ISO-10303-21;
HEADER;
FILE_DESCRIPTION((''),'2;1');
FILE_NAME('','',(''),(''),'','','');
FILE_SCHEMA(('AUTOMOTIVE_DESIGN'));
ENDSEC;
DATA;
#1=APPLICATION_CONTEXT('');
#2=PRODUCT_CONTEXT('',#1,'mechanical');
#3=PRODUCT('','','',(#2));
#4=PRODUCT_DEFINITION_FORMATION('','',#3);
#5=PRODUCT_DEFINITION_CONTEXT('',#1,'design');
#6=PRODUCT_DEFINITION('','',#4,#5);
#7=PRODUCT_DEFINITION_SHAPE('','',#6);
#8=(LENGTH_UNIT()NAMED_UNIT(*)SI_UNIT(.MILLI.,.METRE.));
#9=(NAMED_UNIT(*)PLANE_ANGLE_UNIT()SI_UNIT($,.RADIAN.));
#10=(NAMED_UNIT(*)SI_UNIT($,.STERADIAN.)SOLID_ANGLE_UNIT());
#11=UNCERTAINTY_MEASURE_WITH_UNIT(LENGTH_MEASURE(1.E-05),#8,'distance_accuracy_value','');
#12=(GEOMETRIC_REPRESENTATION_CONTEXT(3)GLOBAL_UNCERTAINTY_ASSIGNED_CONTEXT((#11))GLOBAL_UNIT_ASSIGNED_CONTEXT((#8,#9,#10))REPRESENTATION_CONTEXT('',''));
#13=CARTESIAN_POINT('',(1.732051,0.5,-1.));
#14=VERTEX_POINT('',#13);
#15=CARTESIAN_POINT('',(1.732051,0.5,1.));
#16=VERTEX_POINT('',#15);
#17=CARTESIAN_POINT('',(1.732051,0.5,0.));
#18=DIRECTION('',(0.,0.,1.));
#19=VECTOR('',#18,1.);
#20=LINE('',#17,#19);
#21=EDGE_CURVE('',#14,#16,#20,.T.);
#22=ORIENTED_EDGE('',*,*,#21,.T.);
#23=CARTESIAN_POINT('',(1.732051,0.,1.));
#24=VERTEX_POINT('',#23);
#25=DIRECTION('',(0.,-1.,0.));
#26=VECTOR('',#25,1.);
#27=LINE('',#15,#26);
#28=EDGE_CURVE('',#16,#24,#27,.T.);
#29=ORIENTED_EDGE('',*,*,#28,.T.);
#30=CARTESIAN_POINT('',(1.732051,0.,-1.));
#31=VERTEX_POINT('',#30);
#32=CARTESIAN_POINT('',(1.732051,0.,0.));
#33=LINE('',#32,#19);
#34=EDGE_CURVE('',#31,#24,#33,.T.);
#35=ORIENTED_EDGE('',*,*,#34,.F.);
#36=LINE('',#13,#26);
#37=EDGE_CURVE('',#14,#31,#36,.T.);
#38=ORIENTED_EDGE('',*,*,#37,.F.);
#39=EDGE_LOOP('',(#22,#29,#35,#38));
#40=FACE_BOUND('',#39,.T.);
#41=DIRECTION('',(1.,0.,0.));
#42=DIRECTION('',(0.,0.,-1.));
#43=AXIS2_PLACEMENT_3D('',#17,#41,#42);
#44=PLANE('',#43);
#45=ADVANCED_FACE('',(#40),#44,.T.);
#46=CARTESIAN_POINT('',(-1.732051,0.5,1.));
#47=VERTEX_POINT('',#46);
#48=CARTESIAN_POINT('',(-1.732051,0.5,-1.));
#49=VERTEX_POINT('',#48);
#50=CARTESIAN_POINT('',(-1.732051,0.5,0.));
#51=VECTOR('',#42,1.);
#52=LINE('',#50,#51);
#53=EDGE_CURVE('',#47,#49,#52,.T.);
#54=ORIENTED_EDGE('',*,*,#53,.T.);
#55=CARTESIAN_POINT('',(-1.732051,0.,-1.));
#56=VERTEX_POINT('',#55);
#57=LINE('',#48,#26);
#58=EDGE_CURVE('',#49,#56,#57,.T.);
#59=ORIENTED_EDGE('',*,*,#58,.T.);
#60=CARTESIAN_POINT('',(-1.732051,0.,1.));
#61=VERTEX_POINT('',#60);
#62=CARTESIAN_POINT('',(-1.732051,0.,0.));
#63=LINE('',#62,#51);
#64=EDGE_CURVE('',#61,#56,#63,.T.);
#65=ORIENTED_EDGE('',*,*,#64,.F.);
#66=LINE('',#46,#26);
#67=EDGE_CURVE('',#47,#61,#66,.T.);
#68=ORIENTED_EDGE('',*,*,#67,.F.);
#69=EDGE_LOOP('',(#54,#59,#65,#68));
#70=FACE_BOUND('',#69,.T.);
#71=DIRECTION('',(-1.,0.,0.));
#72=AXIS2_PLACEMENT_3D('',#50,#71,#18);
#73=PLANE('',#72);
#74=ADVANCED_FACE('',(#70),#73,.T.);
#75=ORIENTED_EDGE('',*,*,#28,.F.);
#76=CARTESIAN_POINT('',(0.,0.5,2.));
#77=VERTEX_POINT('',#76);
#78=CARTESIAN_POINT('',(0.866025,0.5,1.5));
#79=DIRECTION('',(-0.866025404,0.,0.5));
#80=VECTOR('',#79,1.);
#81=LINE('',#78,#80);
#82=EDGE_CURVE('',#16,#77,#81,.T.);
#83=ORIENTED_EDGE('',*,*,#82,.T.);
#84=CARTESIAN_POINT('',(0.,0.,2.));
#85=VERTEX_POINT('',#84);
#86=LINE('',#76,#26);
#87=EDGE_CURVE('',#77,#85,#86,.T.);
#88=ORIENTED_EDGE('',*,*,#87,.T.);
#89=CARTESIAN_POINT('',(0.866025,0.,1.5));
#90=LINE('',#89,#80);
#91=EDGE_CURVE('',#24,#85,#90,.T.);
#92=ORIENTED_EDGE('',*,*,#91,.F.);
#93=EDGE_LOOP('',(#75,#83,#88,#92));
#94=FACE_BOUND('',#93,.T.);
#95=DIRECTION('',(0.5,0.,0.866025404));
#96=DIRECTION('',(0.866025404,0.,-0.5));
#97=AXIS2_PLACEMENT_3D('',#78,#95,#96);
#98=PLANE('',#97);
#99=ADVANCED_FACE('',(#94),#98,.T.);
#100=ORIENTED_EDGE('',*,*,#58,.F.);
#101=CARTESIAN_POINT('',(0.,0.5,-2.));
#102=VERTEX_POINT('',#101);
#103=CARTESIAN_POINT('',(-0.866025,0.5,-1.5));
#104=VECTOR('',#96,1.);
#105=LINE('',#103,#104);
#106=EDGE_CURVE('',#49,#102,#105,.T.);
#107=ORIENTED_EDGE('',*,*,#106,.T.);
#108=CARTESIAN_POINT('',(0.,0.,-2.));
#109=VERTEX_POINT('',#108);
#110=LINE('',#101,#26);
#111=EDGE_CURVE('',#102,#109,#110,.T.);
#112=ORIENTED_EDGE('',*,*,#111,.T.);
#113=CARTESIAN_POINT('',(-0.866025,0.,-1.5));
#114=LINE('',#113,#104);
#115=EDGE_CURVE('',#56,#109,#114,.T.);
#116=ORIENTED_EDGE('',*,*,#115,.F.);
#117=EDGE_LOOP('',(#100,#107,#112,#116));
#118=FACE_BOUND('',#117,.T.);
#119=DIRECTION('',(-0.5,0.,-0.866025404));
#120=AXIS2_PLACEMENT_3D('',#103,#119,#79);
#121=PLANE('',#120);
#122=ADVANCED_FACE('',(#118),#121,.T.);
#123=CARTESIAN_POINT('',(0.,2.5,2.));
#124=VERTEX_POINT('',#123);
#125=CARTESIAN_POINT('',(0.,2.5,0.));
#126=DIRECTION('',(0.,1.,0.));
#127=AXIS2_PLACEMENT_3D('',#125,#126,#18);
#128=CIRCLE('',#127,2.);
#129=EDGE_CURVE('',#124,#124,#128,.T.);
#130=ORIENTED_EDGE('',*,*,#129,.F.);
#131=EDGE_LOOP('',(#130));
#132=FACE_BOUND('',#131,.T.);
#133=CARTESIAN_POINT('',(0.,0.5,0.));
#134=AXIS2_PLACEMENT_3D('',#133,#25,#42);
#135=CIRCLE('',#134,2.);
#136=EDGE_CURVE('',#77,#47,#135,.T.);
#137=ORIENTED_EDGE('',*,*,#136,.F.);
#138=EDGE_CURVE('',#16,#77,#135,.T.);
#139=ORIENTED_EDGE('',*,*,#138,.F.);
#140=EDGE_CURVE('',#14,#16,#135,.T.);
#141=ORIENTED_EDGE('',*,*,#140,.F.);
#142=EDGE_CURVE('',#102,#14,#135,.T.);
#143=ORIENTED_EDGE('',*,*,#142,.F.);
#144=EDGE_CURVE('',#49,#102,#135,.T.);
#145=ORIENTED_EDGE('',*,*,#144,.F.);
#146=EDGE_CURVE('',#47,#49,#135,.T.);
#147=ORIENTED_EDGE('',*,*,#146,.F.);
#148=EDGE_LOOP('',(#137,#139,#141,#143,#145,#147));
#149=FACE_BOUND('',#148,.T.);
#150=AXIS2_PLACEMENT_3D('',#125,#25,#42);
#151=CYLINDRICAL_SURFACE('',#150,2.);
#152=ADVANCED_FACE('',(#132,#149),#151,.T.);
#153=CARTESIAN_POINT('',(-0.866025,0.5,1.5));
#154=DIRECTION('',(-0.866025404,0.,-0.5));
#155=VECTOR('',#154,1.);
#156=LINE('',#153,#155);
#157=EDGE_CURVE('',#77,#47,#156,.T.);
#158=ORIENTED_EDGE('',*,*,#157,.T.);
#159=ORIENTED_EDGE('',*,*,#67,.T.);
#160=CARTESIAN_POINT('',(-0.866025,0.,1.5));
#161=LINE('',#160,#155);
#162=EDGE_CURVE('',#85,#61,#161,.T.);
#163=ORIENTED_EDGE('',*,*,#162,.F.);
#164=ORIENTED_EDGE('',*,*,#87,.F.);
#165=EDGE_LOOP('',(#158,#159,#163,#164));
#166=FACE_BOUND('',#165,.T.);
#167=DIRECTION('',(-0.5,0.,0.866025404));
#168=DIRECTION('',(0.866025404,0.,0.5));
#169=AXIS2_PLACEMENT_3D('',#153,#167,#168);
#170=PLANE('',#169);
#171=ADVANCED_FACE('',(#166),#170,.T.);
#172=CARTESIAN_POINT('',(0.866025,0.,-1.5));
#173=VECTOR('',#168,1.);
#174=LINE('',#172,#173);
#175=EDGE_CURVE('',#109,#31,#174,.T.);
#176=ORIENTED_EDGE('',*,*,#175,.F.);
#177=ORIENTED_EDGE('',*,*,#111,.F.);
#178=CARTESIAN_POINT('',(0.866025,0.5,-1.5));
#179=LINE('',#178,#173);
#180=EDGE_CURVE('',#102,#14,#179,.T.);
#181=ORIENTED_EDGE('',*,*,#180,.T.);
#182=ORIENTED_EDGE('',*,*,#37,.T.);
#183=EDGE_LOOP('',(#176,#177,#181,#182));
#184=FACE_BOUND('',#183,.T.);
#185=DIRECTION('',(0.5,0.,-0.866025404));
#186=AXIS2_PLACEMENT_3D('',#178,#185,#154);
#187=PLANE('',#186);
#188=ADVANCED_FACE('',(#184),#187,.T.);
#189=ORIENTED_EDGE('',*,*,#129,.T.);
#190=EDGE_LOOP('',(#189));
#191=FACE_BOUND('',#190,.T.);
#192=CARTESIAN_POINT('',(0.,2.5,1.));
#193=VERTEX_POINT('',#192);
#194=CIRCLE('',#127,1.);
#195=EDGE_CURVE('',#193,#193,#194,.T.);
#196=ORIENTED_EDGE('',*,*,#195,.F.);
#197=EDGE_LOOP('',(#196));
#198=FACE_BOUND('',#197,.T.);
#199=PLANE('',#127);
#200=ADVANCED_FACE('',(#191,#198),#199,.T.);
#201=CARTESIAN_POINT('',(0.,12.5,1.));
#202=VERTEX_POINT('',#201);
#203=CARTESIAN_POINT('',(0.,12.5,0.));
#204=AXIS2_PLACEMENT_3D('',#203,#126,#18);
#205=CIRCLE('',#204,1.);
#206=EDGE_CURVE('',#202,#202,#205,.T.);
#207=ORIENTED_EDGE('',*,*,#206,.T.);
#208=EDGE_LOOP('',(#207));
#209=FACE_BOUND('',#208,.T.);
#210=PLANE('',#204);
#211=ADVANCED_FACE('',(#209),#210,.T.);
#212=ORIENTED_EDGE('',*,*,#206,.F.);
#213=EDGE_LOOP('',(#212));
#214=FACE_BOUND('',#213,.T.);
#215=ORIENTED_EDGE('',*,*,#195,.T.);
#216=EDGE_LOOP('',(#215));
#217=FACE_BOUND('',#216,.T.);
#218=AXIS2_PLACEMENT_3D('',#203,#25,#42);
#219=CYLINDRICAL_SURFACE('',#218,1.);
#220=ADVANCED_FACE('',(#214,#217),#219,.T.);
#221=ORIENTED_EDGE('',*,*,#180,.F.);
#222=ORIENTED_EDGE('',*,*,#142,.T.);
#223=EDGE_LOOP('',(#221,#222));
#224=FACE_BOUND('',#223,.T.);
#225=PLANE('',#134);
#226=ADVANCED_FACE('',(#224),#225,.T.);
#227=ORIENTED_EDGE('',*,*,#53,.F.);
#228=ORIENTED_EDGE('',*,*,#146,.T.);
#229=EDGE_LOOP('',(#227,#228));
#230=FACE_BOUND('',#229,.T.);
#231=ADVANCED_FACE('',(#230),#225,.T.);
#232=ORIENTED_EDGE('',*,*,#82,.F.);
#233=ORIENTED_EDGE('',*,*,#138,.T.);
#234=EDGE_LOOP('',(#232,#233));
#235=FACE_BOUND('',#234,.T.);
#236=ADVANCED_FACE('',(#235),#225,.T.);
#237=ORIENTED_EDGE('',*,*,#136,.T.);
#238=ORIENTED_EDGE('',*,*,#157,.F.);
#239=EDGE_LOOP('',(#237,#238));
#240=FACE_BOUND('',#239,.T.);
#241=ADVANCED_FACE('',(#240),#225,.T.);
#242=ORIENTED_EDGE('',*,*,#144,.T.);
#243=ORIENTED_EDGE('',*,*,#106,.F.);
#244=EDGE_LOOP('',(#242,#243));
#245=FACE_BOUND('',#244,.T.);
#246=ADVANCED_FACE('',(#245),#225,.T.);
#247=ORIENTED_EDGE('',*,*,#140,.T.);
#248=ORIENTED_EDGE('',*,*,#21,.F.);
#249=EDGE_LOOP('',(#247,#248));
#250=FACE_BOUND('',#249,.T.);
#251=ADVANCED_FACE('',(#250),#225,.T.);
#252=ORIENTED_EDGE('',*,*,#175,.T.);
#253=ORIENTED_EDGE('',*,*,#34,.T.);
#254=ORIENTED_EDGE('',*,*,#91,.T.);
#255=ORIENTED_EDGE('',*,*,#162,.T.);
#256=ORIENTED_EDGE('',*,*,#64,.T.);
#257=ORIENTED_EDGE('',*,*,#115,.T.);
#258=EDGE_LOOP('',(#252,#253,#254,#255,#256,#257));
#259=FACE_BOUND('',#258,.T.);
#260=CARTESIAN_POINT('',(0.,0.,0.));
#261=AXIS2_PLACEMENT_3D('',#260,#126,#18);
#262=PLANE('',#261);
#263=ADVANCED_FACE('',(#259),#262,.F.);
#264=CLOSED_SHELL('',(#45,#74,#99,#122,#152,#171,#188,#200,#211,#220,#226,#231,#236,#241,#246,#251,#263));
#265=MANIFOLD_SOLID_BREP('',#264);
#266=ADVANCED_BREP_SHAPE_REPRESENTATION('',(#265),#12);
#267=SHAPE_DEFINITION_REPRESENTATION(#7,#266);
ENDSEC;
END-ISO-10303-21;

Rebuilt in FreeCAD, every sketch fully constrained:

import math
import FreeCAD as App
import Part
import Sketcher
Q = App.Units.Quantity

doc = App.newDocument("Part")
params = doc.addObject("Spreadsheet::Sheet", "Params")
for row, (alias, value) in enumerate([
    ("sketch1_diameter", "4 mm"),
    ("pad1_length", "2.5 mm"),
    ("sketch2_diameter", "2 mm"),
    ("pad2_length", "10 mm"),
    ("sketch3_radius", "2 mm"),
    ("sketch3_height", "2 mm"),
    ("pocket1_length", "0.5 mm"),
], start=1):
    params.set(f"A{row}", alias)
    params.set(f"B{row}", "=" + value)
    params.setAlias(f"B{row}", alias)

body = doc.addObject("PartDesign::Body", "Body")

sketch1 = doc.addObject("Sketcher::SketchObject", "Sketch")
body.addObject(sketch1)
sketch1.AttachmentSupport = (doc.XZ_Plane, [""])
sketch1.MapMode = "FlatFace"
sketch1.addGeometry(Part.Circle(App.Vector(0, 0, 0), App.Vector(0, 0, 1), 2), False)
sketch1.addConstraint([
    Sketcher.Constraint("Coincident", 0, 3, -1, 1),
    Sketcher.Constraint("Diameter", 0, Q("4 mm")),
])
sketch1.setExpression("Constraints[1]", "Params.sketch1_diameter")
pad1 = doc.addObject("PartDesign::Pad", "Pad")
body.addObject(pad1)
pad1.Profile = sketch1
pad1.setExpression("Length", "Params.pad1_length")
pad1.Reversed = True

sketch2 = doc.addObject("Sketcher::SketchObject", "Sketch001")
body.addObject(sketch2)
sketch2.AttachmentSupport = (doc.XZ_Plane, [""])
sketch2.MapMode = "FlatFace"
sketch2.AttachmentOffset = App.Placement(App.Vector(0, 0, -2.5), App.Rotation())
sketch2.addGeometry(Part.Circle(App.Vector(0, 0, 0), App.Vector(0, 0, 1), 1), False)
sketch2.addConstraint([
    Sketcher.Constraint("Coincident", 0, 3, -1, 1),
    Sketcher.Constraint("Diameter", 0, Q("2 mm")),
])
sketch2.setExpression("Constraints[1]", "Params.sketch2_diameter")
pad2 = doc.addObject("PartDesign::Pad", "Pad001")
body.addObject(pad2)
pad2.Profile = sketch2
pad2.setExpression("Length", "Params.pad2_length")
pad2.Reversed = True

sketch3 = doc.addObject("Sketcher::SketchObject", "Sketch002")
body.addObject(sketch3)
sketch3.AttachmentSupport = (doc.XZ_Plane, [""])
sketch3.MapMode = "FlatFace"
sketch3.addGeometry([
    Part.LineSegment(App.Vector(-1.7, 1, 0), App.Vector(0, 2, 0)),
    Part.ArcOfCircle(Part.Circle(App.Vector(0, 0, 0), App.Vector(0, 0, 1), 2), math.radians(90), math.radians(150)),
    Part.LineSegment(App.Vector(-1.7, -1, 0), App.Vector(-1.7, 1, 0)),
    Part.ArcOfCircle(Part.Circle(App.Vector(0, 0, 0), App.Vector(0, 0, 1), 2), math.radians(150), math.radians(210)),
    Part.LineSegment(App.Vector(0, -2, 0), App.Vector(-1.7, -1, 0)),
    Part.ArcOfCircle(Part.Circle(App.Vector(0, 0, 0), App.Vector(0, 0, 1), 2), math.radians(-150), math.radians(-90)),
    Part.ArcOfCircle(Part.Circle(App.Vector(0, 0, 0), App.Vector(0, 0, 1), 2), math.radians(-90), math.radians(-30)),
    Part.LineSegment(App.Vector(1.7, -1, 0), App.Vector(0, -2, 0)),
    Part.ArcOfCircle(Part.Circle(App.Vector(0, 0, 0), App.Vector(0, 0, 1), 2), math.radians(0), math.radians(30)),
    Part.LineSegment(App.Vector(1.7, 1, 0), App.Vector(1.7, -1, 0)),
    Part.ArcOfCircle(Part.Circle(App.Vector(0, 0, 0), App.Vector(0, 0, 1), 2), math.radians(-30), math.radians(0)),
    Part.ArcOfCircle(Part.Circle(App.Vector(0, 0, 0), App.Vector(0, 0, 1), 2), math.radians(30), math.radians(90)),
    Part.LineSegment(App.Vector(0, 2, 0), App.Vector(1.7, 1, 0)),
], False)
sketch3.addConstraint([
    Sketcher.Constraint("Coincident", 0, 1, 1, 2),
    Sketcher.Constraint("Coincident", 1, 1, 0, 2),
    Sketcher.Constraint("Coincident", 2, 1, 3, 2),
    Sketcher.Constraint("Coincident", 3, 1, 2, 2),
    Sketcher.Constraint("Coincident", 4, 1, 5, 2),
    Sketcher.Constraint("Coincident", 5, 1, 4, 2),
    Sketcher.Constraint("Coincident", 6, 1, 7, 2),
    Sketcher.Constraint("Coincident", 7, 1, 6, 2),
    Sketcher.Constraint("Coincident", 8, 2, 9, 1),
    Sketcher.Constraint("Coincident", 9, 2, 10, 1),
    Sketcher.Constraint("Tangent", 10, 2, 8, 1),
    Sketcher.Constraint("Coincident", 11, 1, 12, 2),
    Sketcher.Constraint("Coincident", 12, 1, 11, 2),
    Sketcher.Constraint("Vertical", 2),
    Sketcher.Constraint("Vertical", 9),
    Sketcher.Constraint("Coincident", 1, 3, -1, 1),
    Sketcher.Constraint("Coincident", 3, 3, -1, 1),
    Sketcher.Constraint("Coincident", 5, 3, -1, 1),
    Sketcher.Constraint("Coincident", 6, 3, -1, 1),
    Sketcher.Constraint("Coincident", 8, 3, -1, 1),
    Sketcher.Constraint("Coincident", 11, 3, -1, 1),
    Sketcher.Constraint("Coincident", 3, 1, 0, 1),
    Sketcher.Constraint("Coincident", 5, 1, 2, 1),
    Sketcher.Constraint("Coincident", 6, 1, 4, 1),
    Sketcher.Constraint("Coincident", 9, 2, 7, 1),
    Sketcher.Constraint("Coincident", 11, 1, 8, 2),
    Sketcher.Constraint("Coincident", 12, 1, 1, 1),
    Sketcher.Constraint("PointOnObject", 1, 1, -2),
    Sketcher.Constraint("PointOnObject", 4, 1, -2),
    Sketcher.Constraint("PointOnObject", 10, 2, -1),
    Sketcher.Constraint("Parallel", 0, 7),
    Sketcher.Constraint("Radius", 1, Q("2 mm")),
    Sketcher.Constraint("DistanceY", 2, 1, 2, 2, Q("2 mm")),
])
sketch3.setExpression("Constraints[31]", "Params.sketch3_radius")
sketch3.setExpression("Constraints[32]", "Params.sketch3_height")
pocket1 = doc.addObject("PartDesign::Pocket", "Pocket")
body.addObject(pocket1)
pocket1.Profile = sketch3
pocket1.setExpression("Length", "Params.pocket1_length")

doc.recompute()
